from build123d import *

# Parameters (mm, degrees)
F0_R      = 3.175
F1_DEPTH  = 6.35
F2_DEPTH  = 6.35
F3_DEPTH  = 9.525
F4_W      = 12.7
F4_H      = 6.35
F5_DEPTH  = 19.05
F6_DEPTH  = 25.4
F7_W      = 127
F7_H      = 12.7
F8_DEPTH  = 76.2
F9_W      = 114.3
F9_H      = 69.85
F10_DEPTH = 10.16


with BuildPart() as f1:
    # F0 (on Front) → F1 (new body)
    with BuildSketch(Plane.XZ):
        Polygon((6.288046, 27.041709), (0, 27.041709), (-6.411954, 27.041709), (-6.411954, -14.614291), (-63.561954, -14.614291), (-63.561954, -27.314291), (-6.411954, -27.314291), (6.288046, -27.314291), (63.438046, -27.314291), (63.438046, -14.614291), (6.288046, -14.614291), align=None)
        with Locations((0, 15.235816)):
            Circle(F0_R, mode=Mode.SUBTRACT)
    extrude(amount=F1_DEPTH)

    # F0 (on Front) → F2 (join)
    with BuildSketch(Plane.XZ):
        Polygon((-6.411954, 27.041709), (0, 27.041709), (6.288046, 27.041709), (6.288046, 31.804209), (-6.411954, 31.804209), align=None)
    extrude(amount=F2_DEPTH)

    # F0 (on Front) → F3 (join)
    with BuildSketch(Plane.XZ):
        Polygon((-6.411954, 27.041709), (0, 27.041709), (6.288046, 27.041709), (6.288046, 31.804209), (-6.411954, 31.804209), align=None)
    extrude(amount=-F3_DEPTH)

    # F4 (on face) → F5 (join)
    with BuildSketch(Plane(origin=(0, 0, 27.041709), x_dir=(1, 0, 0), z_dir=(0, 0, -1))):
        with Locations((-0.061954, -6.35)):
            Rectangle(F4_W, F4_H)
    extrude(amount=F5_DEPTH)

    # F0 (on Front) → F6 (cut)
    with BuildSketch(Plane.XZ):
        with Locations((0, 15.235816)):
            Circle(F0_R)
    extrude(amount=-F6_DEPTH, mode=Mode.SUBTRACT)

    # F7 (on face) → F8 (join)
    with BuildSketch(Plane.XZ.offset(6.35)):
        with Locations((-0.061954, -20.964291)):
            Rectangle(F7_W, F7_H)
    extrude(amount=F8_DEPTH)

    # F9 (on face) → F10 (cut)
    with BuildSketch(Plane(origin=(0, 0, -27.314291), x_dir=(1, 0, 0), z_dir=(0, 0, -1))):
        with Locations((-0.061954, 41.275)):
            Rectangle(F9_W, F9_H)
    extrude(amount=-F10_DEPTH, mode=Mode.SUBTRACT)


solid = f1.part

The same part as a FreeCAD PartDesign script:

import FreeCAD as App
import Part
import Sketcher
Q = App.Units.Quantity


def add_polygon(sketch, points):
    """Adds a closed chain of lines whose ends are joined by coincident constraints."""
    first, n = sketch.GeometryCount, len(points)
    for a, b in zip(points, points[1:] + points[:1]):
        sketch.addGeometry(Part.LineSegment(App.Vector(*a, 0), App.Vector(*b, 0)), False)
    for i in range(n):
        sketch.addConstraint(Sketcher.Constraint("Coincident", first + i, 2, first + (i + 1) % n, 1))

doc = App.newDocument("Part")
body = doc.addObject("PartDesign::Body", "Body")

# Sketch on XZ plane
sketch1 = doc.addObject("Sketcher::SketchObject", "Sketch")
body.addObject(sketch1)
sketch1.AttachmentSupport = (doc.XZ_Plane, [""])
sketch1.MapMode = "FlatFace"
add_polygon(sketch1, [(6.288046, 27.041709), (-6.411954, 27.041709), (-6.411954, -14.614291), (-63.561954, -14.614291), (-63.561954, -27.314291), (63.438046, -27.314291), (63.438046, -14.614291), (6.288046, -14.614291)])  # lines 0-7
sketch1.addGeometry(Part.Circle(App.Vector(0, 15.235816, 0), App.Vector(0, 0, 1), 3.175), False)  # 8
sketch1.addConstraint([
    Sketcher.Constraint("Horizontal", 0),
    Sketcher.Constraint("Vertical", 1),
    Sketcher.Constraint("Horizontal", 2),
    Sketcher.Constraint("Vertical", 3),
    Sketcher.Constraint("Horizontal", 4),
    Sketcher.Constraint("Vertical", 5),
    Sketcher.Constraint("Horizontal", 6),
    Sketcher.Constraint("Vertical", 7),
    Sketcher.Constraint("PointOnObject", 8, 3, -2),
    Sketcher.Constraint("Horizontal", 2, 2, 5, 2),
    Sketcher.Constraint("Equal", 2, 6),
    Sketcher.Constraint("Equal", 0, 3),
    Sketcher.Constraint("Diameter", 8, Q("0.25 in")),
    Sketcher.Constraint("DistanceX", 4, 1, 4, 2, Q("5 in")),
    Sketcher.Constraint("DistanceX", 0, 2, 0, 1, Q("0.5 in")),
    Sketcher.Constraint("DistanceY", 1, 2, 1, 1, Q("1.64 in")),
    Sketcher.Constraint("DistanceY", -1, 1, 0, 2, Q("27.041709 mm")),
    Sketcher.Constraint("DistanceY", -1, 1, 8, 3, Q("15.235816 mm")),
    Sketcher.Constraint("DistanceX", 0, 2, -1, 1, Q("6.411954 mm")),
])
pad1 = doc.addObject("PartDesign::Pad", "Pad")
body.addObject(pad1)
pad1.Profile = sketch1
pad1.Length = Q("0.25 in")

# Sketch on XZ plane
sketch2 = doc.addObject("Sketcher::SketchObject", "Sketch001")
body.addObject(sketch2)
sketch2.AttachmentSupport = (doc.XZ_Plane, [""])
sketch2.MapMode = "FlatFace"
add_polygon(sketch2, [(-6.411954, 27.041709), (6.288046, 27.041709), (6.288046, 31.804209), (-6.411954, 31.804209)])  # lines 0-3
sketch2.addConstraint([
    Sketcher.Constraint("Horizontal", 0),
    Sketcher.Constraint("Vertical", 1),
    Sketcher.Constraint("Horizontal", 2),
    Sketcher.Constraint("Vertical", 3),
    Sketcher.Constraint("DistanceX", 0, 1, 0, 2, Q("0.5 in")),
    Sketcher.Constraint("DistanceY", 1, 1, 1, 2, Q("0.1875 in")),
    Sketcher.Constraint("DistanceY", -1, 1, 0, 2, Q("27.041709 mm")),
    Sketcher.Constraint("DistanceX", -1, 1, 0, 2, Q("6.288046 mm")),
])
pad2 = doc.addObject("PartDesign::Pad", "Pad001")
body.addObject(pad2)
pad2.Profile = sketch2
pad2.Length = Q("0.25 in")

# Sketch on XZ plane
sketch3 = doc.addObject("Sketcher::SketchObject", "Sketch002")
body.addObject(sketch3)
sketch3.AttachmentSupport = (doc.XZ_Plane, [""])
sketch3.MapMode = "FlatFace"
add_polygon(sketch3, [(-6.411954, 27.041709), (6.288046, 27.041709), (6.288046, 31.804209), (-6.411954, 31.804209)])  # lines 0-3
sketch3.addConstraint([
    Sketcher.Constraint("Horizontal", 0),
    Sketcher.Constraint("Vertical", 1),
    Sketcher.Constraint("Horizontal", 2),
    Sketcher.Constraint("Vertical", 3),
    Sketcher.Constraint("DistanceX", 0, 1, 0, 2, Q("0.5 in")),
    Sketcher.Constraint("DistanceY", 1, 1, 1, 2, Q("0.1875 in")),
    Sketcher.Constraint("DistanceY", -1, 1, 0, 2, Q("27.041709 mm")),
    Sketcher.Constraint("DistanceX", -1, 1, 0, 2, Q("6.288046 mm")),
])
pad3 = doc.addObject("PartDesign::Pad", "Pad002")
body.addObject(pad3)
pad3.Profile = sketch3
pad3.Length = Q("0.375 in")
pad3.Reversed = True

# Sketch on XY plane
sketch4 = doc.addObject("Sketcher::SketchObject", "Sketch003")
body.addObject(sketch4)
sketch4.AttachmentSupport = (doc.XY_Plane, [""])
sketch4.MapMode = "FlatFace"
sketch4.AttachmentOffset = App.Placement(App.Vector(0, 0, 27.041709), App.Rotation())
add_polygon(sketch4, [(-6.411954, 3.175), (-6.411954, 9.525), (6.288046, 9.525), (6.288046, 3.175)])  # lines 0-3
sketch4.addConstraint([
    Sketcher.Constraint("Vertical", 0),
    Sketcher.Constraint("Horizontal", 1),
    Sketcher.Constraint("Vertical", 2),
    Sketcher.Constraint("Horizontal", 3),
    Sketcher.Constraint("DistanceX", 1, 1, 1, 2, Q("0.5 in")),
    Sketcher.Constraint("DistanceY", 0, 1, 0, 2, Q("0.25 in")),
    Sketcher.Constraint("DistanceY", -1, 1, 0, 2, Q("0.375 in")),
    Sketcher.Constraint("DistanceX", 0, 2, -1, 1, Q("6.411954 mm")),
])
pad4 = doc.addObject("PartDesign::Pad", "Pad003")
body.addObject(pad4)
pad4.Profile = sketch4
pad4.Length = Q("0.75 in")
pad4.Reversed = True

# Sketch on XZ plane
sketch5 = doc.addObject("Sketcher::SketchObject", "Sketch004")
body.addObject(sketch5)
sketch5.AttachmentSupport = (doc.XZ_Plane, [""])
sketch5.MapMode = "FlatFace"
sketch5.addGeometry(Part.Circle(App.Vector(0, 15.235816, 0), App.Vector(0, 0, 1), 3.175), False)
sketch5.addConstraint([
    Sketcher.Constraint("PointOnObject", 0, 3, -2),
    Sketcher.Constraint("Diameter", 0, Q("0.25 in")),
    Sketcher.Constraint("DistanceY", -1, 1, 0, 3, Q("15.235816 mm")),
])
pocket1 = doc.addObject("PartDesign::Pocket", "Pocket")
body.addObject(pocket1)
pocket1.Profile = sketch5
pocket1.Length = Q("1 in")

# Sketch on XZ plane
sketch6 = doc.addObject("Sketcher::SketchObject", "Sketch005")
body.addObject(sketch6)
sketch6.AttachmentSupport = (doc.XZ_Plane, [""])
sketch6.MapMode = "FlatFace"
sketch6.AttachmentOffset = App.Placement(App.Vector(0, 0, 0.25 * 25.4), App.Rotation())
add_polygon(sketch6, [(-63.561954, -14.614291), (-63.561954, -27.314291), (63.438046, -27.314291), (63.438046, -14.614291)])  # lines 0-3
sketch6.addConstraint([
    Sketcher.Constraint("Vertical", 0),
    Sketcher.Constraint("Horizontal", 1),
    Sketcher.Constraint("Vertical", 2),
    Sketcher.Constraint("Horizontal", 3),
    Sketcher.Constraint("DistanceX", 1, 1, 1, 2, Q("5 in")),
    Sketcher.Constraint("DistanceY", 0, 2, 0, 1, Q("0.5 in")),
    Sketcher.Constraint("DistanceY", 0, 2, -1, 1, Q("27.314291 mm")),
    Sketcher.Constraint("DistanceX", 0, 2, -1, 1, Q("63.561954 mm")),
])
pad5 = doc.addObject("PartDesign::Pad", "Pad004")
body.addObject(pad5)
pad5.Profile = sketch6
pad5.Length = Q("3 in")

# Sketch on XY plane
sketch7 = doc.addObject("Sketcher::SketchObject", "Sketch006")
body.addObject(sketch7)
sketch7.AttachmentSupport = (doc.XY_Plane, [""])
sketch7.MapMode = "FlatFace"
sketch7.AttachmentOffset = App.Placement(App.Vector(0, 0, -27.314291), App.Rotation())
add_polygon(sketch7, [(-57.211954, -76.2), (-57.211954, -6.35), (57.088046, -6.35), (57.088046, -76.2)])  # lines 0-3
sketch7.addConstraint([
    Sketcher.Constraint("Vertical", 0),
    Sketcher.Constraint("Horizontal", 1),
    Sketcher.Constraint("Vertical", 2),
    Sketcher.Constraint("Horizontal", 3),
    Sketcher.Constraint("DistanceX", 1, 1, 1, 2, Q("4.5 in")),
    Sketcher.Constraint("DistanceY", 2, 2, -1, 1, Q("3 in")),
    Sketcher.Constraint("DistanceY", 0, 1, 0, 2, Q("2.75 in")),
    Sketcher.Constraint("DistanceX", 0, 2, -1, 1, Q("57.211954 mm")),
])
pocket2 = doc.addObject("PartDesign::Pocket", "Pocket001")
body.addObject(pocket2)
pocket2.Profile = sketch7
pocket2.Length = Q("0.4 in")
pocket2.Reversed = True

doc.recompute()
